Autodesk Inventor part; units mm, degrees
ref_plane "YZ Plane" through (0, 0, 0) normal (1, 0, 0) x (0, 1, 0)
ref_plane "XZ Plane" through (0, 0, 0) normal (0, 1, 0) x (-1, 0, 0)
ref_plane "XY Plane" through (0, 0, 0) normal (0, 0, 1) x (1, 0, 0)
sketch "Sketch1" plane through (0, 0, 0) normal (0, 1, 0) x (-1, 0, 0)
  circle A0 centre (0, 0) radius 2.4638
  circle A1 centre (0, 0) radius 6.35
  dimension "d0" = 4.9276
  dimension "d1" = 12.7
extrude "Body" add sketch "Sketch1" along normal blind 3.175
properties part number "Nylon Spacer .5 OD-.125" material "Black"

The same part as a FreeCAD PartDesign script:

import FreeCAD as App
import Part
import Sketcher
from FreeCAD import Vector
Q = App.Units.Quantity

doc = App.newDocument("Part")
body = doc.addObject("PartDesign::Body", "Body")

# Sketch on XZ plane
sketch1 = body.newObject("Sketcher::SketchObject", "Sketch")
sketch1.AttachmentSupport = (doc.getObject("XZ_Plane"), [""])
sketch1.MapMode = "FlatFace"
sketch1.addGeometry([
    Part.Circle(Vector(0, 0, 0), Vector(0, 0, 1), 6.3),
    Part.Circle(Vector(0, 0, 0), Vector(0, 0, 1), 2.5),
], False)
sketch1.addConstraint([
    Sketcher.Constraint("Coincident", 0, 3, -1, 1),
    Sketcher.Constraint("Coincident", 1, 3, -1, 1),
    Sketcher.Constraint("Diameter", 0, Q("0.5 in")),
    Sketcher.Constraint("Diameter", 1, Q("0.194 in")),
])
pad1 = body.newObject("PartDesign::Pad", "Pad")
pad1.Profile = sketch1
pad1.Length = Q("0.125 in")
pad1.Reversed = True

doc.recompute()
